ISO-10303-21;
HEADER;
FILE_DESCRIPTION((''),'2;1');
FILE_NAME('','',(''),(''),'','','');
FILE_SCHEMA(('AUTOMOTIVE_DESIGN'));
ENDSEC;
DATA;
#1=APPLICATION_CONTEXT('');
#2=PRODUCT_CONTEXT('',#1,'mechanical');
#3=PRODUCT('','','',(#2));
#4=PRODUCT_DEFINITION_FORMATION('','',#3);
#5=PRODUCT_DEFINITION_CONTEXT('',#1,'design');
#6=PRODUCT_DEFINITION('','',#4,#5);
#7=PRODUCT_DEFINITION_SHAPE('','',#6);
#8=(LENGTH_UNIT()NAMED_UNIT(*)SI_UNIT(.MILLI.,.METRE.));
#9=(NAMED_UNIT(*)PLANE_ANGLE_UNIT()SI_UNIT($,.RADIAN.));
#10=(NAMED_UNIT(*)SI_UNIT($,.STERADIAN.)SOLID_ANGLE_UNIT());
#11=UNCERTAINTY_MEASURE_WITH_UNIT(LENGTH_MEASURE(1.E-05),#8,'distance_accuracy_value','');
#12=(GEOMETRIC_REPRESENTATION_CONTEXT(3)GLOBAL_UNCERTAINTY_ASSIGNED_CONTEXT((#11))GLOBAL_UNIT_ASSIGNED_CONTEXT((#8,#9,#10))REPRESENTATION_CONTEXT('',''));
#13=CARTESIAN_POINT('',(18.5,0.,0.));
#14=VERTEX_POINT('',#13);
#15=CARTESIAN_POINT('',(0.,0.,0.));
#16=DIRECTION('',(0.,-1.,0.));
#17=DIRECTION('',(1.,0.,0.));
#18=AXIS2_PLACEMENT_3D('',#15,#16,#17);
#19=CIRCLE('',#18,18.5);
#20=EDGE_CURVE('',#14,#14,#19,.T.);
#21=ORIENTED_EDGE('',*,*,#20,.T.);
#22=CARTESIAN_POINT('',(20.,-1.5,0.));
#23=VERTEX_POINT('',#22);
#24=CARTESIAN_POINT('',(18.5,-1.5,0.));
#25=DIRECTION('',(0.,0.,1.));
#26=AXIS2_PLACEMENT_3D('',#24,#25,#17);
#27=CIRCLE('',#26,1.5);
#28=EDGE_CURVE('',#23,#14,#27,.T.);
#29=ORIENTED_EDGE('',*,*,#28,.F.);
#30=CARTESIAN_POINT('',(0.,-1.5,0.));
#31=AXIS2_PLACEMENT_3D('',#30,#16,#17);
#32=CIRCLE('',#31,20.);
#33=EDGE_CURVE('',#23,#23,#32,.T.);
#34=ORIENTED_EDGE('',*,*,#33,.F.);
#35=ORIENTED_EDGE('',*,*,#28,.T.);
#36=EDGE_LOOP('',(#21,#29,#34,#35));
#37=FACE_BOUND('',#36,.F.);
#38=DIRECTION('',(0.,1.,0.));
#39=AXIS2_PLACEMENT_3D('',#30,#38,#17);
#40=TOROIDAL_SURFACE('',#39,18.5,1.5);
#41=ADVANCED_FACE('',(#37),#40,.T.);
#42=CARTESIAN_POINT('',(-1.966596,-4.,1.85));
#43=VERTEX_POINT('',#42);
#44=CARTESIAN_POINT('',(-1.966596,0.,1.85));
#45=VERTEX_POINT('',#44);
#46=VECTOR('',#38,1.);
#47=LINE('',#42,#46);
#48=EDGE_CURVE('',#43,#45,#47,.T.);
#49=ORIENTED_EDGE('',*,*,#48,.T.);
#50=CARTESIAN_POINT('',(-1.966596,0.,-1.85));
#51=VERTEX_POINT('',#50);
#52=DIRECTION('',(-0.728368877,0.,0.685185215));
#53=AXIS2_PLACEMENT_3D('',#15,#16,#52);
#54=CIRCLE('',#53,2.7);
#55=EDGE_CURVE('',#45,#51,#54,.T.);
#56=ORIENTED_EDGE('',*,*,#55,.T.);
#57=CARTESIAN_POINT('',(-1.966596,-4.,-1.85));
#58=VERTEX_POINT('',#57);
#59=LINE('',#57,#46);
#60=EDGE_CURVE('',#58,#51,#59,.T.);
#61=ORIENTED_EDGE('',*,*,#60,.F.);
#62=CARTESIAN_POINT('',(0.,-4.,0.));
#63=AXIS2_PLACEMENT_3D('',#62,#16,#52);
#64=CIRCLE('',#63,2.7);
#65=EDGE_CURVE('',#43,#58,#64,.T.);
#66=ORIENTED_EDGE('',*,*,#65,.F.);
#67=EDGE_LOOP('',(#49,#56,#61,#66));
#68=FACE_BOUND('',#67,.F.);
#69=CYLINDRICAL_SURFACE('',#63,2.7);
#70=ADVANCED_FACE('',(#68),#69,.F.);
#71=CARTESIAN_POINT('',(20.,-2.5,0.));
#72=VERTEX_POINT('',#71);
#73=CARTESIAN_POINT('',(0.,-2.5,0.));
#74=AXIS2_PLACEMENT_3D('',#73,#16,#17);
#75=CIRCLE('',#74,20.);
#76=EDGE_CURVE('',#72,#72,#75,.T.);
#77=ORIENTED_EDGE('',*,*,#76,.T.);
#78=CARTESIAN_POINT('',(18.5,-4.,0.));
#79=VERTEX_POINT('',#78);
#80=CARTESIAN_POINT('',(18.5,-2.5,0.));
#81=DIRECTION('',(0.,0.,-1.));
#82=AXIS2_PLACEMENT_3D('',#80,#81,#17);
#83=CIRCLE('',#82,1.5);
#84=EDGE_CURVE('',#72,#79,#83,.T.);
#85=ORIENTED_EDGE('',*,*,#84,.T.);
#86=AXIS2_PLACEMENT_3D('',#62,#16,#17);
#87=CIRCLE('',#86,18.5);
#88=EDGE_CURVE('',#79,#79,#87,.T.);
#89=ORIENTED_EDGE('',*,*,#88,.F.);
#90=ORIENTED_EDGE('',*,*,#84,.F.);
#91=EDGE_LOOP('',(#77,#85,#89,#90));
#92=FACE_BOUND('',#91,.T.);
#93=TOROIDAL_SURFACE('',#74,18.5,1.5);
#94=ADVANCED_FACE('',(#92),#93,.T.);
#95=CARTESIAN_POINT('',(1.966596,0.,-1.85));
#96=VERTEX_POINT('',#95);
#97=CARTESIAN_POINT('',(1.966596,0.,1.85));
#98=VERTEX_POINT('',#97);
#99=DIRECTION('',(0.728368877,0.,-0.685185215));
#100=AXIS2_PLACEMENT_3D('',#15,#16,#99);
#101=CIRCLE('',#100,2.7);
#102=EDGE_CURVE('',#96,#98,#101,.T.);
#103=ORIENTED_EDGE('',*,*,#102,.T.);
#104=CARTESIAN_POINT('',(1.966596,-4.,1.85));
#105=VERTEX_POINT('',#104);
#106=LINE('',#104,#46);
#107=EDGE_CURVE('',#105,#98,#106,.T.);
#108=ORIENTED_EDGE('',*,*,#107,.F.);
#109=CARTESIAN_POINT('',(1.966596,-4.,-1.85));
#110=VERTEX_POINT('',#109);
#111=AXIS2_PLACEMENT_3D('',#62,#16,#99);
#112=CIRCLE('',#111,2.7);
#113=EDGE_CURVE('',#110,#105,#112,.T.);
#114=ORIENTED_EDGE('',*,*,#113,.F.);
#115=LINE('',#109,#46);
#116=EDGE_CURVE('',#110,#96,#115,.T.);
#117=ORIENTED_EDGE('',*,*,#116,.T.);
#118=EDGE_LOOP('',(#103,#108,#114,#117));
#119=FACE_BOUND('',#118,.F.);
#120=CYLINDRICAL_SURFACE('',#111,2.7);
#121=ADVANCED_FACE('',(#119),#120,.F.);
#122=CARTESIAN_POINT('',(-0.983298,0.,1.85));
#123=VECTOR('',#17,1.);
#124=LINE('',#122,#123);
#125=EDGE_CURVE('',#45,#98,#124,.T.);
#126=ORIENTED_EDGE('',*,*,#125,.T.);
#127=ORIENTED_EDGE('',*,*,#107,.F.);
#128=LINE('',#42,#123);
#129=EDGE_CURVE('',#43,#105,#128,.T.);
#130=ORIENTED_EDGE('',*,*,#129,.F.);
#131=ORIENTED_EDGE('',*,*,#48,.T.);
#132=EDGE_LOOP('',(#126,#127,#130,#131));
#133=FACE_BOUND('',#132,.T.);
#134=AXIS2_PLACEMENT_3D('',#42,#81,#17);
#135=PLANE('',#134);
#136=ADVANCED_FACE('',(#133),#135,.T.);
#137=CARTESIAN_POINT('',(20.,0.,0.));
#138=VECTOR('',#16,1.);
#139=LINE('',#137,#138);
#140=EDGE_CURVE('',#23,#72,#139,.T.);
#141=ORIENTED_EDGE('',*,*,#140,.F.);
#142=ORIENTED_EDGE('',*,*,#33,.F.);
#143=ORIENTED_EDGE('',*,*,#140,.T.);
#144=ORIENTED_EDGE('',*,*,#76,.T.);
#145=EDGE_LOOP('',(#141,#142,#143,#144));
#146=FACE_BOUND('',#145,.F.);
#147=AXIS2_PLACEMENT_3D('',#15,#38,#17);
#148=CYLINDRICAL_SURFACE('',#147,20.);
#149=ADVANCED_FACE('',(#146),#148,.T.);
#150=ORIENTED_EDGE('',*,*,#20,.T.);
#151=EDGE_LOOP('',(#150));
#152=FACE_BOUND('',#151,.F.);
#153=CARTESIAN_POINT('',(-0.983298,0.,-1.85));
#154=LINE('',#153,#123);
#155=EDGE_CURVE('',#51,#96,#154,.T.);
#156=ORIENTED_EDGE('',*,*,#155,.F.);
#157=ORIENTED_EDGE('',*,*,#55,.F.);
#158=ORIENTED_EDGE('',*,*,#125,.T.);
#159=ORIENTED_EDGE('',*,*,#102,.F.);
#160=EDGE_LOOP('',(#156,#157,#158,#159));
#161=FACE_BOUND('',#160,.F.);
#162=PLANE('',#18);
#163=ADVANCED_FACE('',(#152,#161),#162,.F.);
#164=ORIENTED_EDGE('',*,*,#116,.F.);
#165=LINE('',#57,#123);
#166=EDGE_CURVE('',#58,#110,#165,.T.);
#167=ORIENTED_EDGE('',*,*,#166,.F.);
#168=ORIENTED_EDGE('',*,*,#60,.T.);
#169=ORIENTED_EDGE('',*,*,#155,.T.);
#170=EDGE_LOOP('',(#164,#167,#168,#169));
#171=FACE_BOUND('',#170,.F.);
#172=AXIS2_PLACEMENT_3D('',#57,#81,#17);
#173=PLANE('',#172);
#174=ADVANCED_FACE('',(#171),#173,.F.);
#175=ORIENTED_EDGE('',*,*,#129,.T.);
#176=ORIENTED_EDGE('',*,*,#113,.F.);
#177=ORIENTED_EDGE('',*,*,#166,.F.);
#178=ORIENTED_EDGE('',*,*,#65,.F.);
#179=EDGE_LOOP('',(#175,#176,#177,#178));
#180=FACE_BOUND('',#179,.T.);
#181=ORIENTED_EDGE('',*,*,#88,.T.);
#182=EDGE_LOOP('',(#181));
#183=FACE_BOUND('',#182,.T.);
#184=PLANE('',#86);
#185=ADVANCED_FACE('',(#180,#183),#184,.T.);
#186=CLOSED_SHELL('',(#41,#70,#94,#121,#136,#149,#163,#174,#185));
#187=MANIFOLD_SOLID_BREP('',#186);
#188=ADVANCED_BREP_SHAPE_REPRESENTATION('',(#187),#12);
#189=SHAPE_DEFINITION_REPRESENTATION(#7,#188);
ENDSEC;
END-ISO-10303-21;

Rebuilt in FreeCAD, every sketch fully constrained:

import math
import FreeCAD as App
import Part
import Sketcher
from FreeCAD import Vector
Q = App.Units.Quantity


def edges_at(feature, points):
    """Names of the edges that pass closest to the given points."""
    edges = feature.Shape.Edges
    near = lambda p: min(range(len(edges)), key=lambda i: edges[i].distToShape(Part.Vertex(*p))[0])
    return sorted({f"Edge{near(p) + 1}" for p in points})

doc = App.newDocument("Part")
body = doc.addObject("PartDesign::Body", "Body")

sketch1 = doc.addObject("Sketcher::SketchObject", "Sketch")
body.addObject(sketch1)
sketch1.AttachmentSupport = (doc.XZ_Plane, [""])
sketch1.MapMode = "FlatFace"
sketch1.addGeometry(Part.Circle(Vector(0, 0, 0), Vector(0, 0, 1), 20), False)
sketch1.addConstraint(Sketcher.Constraint("Coincident", 0, 3, -1, 1))
sketch1.addConstraint(Sketcher.Constraint("Diameter", 0, Q("40 mm")))
pad1 = doc.addObject("PartDesign::Pad", "Pad")
body.addObject(pad1)
pad1.Profile = sketch1
pad1.Length = 4
doc.recompute()

fillet = doc.addObject("PartDesign::Fillet", "Fillet")
body.addObject(fillet)
fillet.Base = (pad1, edges_at(pad1, [(-20, -4, 0), (-20, 0, 0)]))
fillet.Radius = 1.5

sketch2 = doc.addObject("Sketcher::SketchObject", "Sketch001")
body.addObject(sketch2)
sketch2.AttachmentSupport = (doc.XZ_Plane, [""])
sketch2.MapMode = "FlatFace"
sketch2.AttachmentOffset = App.Placement(Vector(0, 0, 4), App.Rotation())
sketch2.addGeometry(Part.ArcOfCircle(Part.Circle(Vector(0, 0, 0), Vector(0, 0, 1), 2.7), math.radians(137), math.radians(223)), False)
sketch2.addGeometry(Part.LineSegment(Vector(-2, -1.9, 0), Vector(2, -1.9, 0)), False)
sketch2.addGeometry(Part.ArcOfCircle(Part.Circle(Vector(0, 0, 0), Vector(0, 0, 1), 2.7), math.radians(-43), math.radians(43)), False)
sketch2.addGeometry(Part.LineSegment(Vector(2, 1.9, 0), Vector(-2, 1.9, 0)), False)
sketch2.addConstraint(Sketcher.Constraint("Coincident", 0, 2, 1, 1))
sketch2.addConstraint(Sketcher.Constraint("Coincident", 1, 2, 2, 1))
sketch2.addConstraint(Sketcher.Constraint("Coincident", 2, 2, 3, 1))
sketch2.addConstraint(Sketcher.Constraint("Coincident", 3, 2, 0, 1))
sketch2.addConstraint(Sketcher.Constraint("Horizontal", 1))
sketch2.addConstraint(Sketcher.Constraint("Horizontal", 3))
sketch2.addConstraint(Sketcher.Constraint("Coincident", 0, 3, -1, 1))
sketch2.addConstraint(Sketcher.Constraint("Coincident", 2, 3, -1, 1))
sketch2.addConstraint(Sketcher.Constraint("Equal", 0, 2))
sketch2.addConstraint(Sketcher.Constraint("Vertical", 1, 2, 2, 2))
sketch2.addConstraint(Sketcher.Constraint("Radius", 0, Q("2.7 mm")))
sketch2.addConstraint(Sketcher.Constraint("DistanceY", 1, 2, 2, 2, Q("3.7 mm")))
pocket1 = doc.addObject("PartDesign::Pocket", "Pocket")
body.addObject(pocket1)
pocket1.Profile = sketch2
pocket1.Type = "ThroughAll"

doc.recompute()
